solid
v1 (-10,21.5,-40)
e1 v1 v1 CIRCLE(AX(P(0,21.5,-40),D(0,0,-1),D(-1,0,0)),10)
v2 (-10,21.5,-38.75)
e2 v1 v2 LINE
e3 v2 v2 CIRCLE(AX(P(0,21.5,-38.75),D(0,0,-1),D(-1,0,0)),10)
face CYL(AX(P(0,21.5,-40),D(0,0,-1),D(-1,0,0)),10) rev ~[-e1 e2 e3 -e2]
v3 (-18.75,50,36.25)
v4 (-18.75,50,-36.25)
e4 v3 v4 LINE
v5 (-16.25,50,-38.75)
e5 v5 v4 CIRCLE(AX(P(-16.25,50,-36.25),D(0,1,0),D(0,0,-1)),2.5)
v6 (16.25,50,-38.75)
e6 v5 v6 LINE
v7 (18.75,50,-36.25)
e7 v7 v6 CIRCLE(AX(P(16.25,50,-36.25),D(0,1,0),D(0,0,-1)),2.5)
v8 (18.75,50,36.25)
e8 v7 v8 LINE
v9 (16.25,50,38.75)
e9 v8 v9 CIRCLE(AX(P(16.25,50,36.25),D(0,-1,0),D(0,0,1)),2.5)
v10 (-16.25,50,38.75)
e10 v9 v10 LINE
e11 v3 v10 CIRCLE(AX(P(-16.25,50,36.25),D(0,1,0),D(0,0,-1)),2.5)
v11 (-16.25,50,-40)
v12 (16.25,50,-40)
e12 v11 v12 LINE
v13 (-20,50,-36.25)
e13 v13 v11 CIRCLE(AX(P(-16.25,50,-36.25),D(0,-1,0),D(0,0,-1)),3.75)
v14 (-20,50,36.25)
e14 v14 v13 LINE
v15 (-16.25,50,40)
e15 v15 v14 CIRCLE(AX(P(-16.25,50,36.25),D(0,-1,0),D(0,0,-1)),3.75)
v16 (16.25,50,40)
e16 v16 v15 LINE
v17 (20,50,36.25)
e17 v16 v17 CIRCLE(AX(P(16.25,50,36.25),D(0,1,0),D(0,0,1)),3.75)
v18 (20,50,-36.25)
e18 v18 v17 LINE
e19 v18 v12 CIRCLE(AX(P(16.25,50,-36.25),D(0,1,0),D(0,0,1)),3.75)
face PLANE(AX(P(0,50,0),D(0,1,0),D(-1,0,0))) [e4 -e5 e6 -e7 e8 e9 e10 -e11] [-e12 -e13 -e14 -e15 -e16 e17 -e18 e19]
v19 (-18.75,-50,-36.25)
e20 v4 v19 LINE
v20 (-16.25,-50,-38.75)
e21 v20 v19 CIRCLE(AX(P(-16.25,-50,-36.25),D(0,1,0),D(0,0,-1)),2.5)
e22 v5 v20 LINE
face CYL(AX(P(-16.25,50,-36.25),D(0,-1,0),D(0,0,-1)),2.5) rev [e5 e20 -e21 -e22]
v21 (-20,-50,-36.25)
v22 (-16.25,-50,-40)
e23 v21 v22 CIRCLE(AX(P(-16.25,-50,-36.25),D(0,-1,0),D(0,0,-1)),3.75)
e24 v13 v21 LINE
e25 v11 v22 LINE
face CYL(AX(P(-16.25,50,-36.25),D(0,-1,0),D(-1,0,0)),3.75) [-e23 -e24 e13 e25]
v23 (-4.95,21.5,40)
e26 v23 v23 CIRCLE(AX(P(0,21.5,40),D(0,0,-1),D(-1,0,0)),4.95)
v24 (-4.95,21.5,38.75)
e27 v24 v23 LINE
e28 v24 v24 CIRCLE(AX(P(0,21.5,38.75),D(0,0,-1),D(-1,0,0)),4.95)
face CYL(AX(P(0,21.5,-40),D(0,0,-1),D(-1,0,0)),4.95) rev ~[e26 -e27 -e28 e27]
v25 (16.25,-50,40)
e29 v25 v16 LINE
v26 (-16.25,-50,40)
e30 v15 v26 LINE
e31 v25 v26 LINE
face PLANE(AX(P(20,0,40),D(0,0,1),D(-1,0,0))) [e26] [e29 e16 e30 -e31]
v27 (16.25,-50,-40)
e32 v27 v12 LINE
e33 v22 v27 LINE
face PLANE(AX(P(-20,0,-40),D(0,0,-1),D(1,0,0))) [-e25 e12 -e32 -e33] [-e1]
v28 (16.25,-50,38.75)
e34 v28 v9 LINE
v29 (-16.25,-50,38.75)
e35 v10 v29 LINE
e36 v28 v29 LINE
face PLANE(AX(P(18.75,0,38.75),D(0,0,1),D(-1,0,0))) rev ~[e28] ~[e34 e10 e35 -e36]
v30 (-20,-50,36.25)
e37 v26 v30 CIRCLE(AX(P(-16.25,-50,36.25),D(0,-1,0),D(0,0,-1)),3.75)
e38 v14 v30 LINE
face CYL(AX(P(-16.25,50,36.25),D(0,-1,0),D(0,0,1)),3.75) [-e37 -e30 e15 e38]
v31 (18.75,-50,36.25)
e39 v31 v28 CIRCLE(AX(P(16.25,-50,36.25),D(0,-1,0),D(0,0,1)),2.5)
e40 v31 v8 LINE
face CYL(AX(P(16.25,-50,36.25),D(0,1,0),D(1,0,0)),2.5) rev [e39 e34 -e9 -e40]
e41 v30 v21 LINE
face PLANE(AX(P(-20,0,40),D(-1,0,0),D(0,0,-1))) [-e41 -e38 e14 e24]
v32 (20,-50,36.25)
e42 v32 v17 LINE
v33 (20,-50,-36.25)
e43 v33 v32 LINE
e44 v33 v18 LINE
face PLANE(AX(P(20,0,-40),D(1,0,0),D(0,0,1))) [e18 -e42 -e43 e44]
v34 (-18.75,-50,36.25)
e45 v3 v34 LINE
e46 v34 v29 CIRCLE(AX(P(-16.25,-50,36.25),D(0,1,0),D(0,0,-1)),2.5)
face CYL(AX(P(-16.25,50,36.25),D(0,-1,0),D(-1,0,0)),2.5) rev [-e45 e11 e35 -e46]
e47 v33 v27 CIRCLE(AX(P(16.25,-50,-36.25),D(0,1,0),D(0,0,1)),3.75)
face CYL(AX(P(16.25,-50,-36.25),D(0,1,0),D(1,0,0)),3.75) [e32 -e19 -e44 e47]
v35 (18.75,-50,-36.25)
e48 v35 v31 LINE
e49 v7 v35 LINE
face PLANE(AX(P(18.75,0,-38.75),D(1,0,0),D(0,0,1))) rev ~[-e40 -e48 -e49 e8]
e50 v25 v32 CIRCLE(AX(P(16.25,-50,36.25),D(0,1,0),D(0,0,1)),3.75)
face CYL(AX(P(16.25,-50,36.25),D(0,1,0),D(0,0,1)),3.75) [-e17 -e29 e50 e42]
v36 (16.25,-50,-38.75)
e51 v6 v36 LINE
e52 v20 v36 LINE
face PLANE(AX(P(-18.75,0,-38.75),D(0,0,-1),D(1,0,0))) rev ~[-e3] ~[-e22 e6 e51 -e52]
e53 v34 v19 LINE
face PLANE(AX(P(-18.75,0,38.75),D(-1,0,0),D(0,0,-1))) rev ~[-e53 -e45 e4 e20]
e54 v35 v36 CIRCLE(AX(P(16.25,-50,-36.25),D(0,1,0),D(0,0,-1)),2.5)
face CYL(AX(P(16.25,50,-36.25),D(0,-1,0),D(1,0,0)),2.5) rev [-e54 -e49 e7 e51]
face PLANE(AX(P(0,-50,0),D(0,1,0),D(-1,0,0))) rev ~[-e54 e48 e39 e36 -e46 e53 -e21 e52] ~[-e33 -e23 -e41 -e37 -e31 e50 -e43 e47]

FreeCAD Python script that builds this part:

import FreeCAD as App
import Part
import Sketcher
from FreeCAD import Vector
Q = App.Units.Quantity


def edges_at(feature, points):
    """Names of the edges that pass closest to the given points."""
    edges = feature.Shape.Edges
    near = lambda p: min(range(len(edges)), key=lambda i: edges[i].distToShape(Part.Vertex(*p))[0])
    return sorted({f"Edge{near(p) + 1}" for p in points})


def add_polygon(sketch, points):
    """Adds a closed chain of lines whose ends are joined by coincident constraints."""
    first, n = sketch.GeometryCount, len(points)
    for a, b in zip(points, points[1:] + points[:1]):
        sketch.addGeometry(Part.LineSegment(App.Vector(*a, 0), App.Vector(*b, 0)), False)
    for i in range(n):
        sketch.addConstraint(Sketcher.Constraint("Coincident", first + i, 2, first + (i + 1) % n, 1))

doc = App.newDocument("Part")
body = doc.addObject("PartDesign::Body", "Body")

# Sketch on XZ plane
sketch1 = doc.addObject("Sketcher::SketchObject", "Sketch")
body.addObject(sketch1)
sketch1.AttachmentSupport = (doc.XZ_Plane, [""])
sketch1.MapMode = "FlatFace"
add_polygon(sketch1, [(-20, 40), (20, 40), (20, -40), (-20, -40)])  # lines 0-3
add_polygon(sketch1, [(18.75, -38.75), (18.75, 38.75), (-18.75, 38.75), (-18.75, -38.75)])  # lines 4-7
sketch1.addConstraint(Sketcher.Constraint("Horizontal", 0))
sketch1.addConstraint(Sketcher.Constraint("Vertical", 1))
sketch1.addConstraint(Sketcher.Constraint("Horizontal", 2))
sketch1.addConstraint(Sketcher.Constraint("Vertical", 3))
sketch1.addConstraint(Sketcher.Constraint("Vertical", 4))
sketch1.addConstraint(Sketcher.Constraint("Horizontal", 5))
sketch1.addConstraint(Sketcher.Constraint("Vertical", 6))
sketch1.addConstraint(Sketcher.Constraint("Horizontal", 7))
sketch1.addConstraint(Sketcher.Constraint("Symmetric", 0, 2, 2, 2, -1, 1))
sketch1.addConstraint(Sketcher.Constraint("Symmetric", 4, 2, 6, 2, -1, 1))
sketch1.addConstraint(Sketcher.Constraint("DistanceX", 0, 1, 0, 2, Q("40 mm")))
sketch1.addConstraint(Sketcher.Constraint("DistanceY", 1, 2, 1, 1, Q("80 mm")))
sketch1.addConstraint(Sketcher.Constraint("DistanceX", 5, 2, 5, 1, Q("37.5 mm")))
sketch1.addConstraint(Sketcher.Constraint("DistanceY", 4, 1, 4, 2, Q("77.5 mm")))
pad1 = doc.addObject("PartDesign::Pad", "Pad")
body.addObject(pad1)
pad1.Profile = sketch1
pad1.Length = 100
pad1.Midplane = True
doc.recompute()

fillet = doc.addObject("PartDesign::Fillet", "Fillet")
body.addObject(fillet)
fillet.Base = (pad1, edges_at(pad1, [
    (20, 0, 40),
    (-20, 0, 40),
    (20, 0, -40),
    (-20, 0, -40),
]))
fillet.Radius = 3.75
doc.recompute()

fillet2 = doc.addObject("PartDesign::Fillet", "Fillet001")
body.addObject(fillet2)
fillet2.Base = (fillet, edges_at(fillet, [
    (18.75, 0, 38.75),
    (-18.75, 0, -38.75),
    (18.75, 0, -38.75),
    (-18.75, 0, 38.75),
]))
fillet2.Radius = 2.5

# Sketch on XY plane
sketch2 = doc.addObject("Sketcher::SketchObject", "Sketch001")
body.addObject(sketch2)
sketch2.AttachmentSupport = (doc.XY_Plane, [""])
sketch2.MapMode = "FlatFace"
sketch2.AttachmentOffset = App.Placement(Vector(0, 0, -40), App.Rotation())
sketch2.addGeometry(Part.Circle(Vector(0, 21.5, 0), Vector(0, 0, 1), 4.95), False)
sketch2.addConstraint(Sketcher.Constraint("PointOnObject", 0, 3, -2))
sketch2.addConstraint(Sketcher.Constraint("Diameter", 0, Q("9.9 mm")))
sketch2.addConstraint(Sketcher.Constraint("DistanceY", -1, 1, 0, 3, Q("21.5 mm")))
pocket1 = doc.addObject("PartDesign::Pocket", "Pocket")
body.addObject(pocket1)
pocket1.Profile = sketch2
pocket1.Type = "ThroughAll"
pocket1.Reversed = True

# Sketch on XY plane
sketch3 = doc.addObject("Sketcher::SketchObject", "Sketch002")
body.addObject(sketch3)
sketch3.AttachmentSupport = (doc.XY_Plane, [""])
sketch3.MapMode = "FlatFace"
sketch3.AttachmentOffset = App.Placement(Vector(0, 0, -40), App.Rotation())
sketch3.addGeometry(Part.Circle(Vector(0, 21.5, 0), Vector(0, 0, 1), 10), False)
sketch3.addGeometry(Part.Circle(Vector(0, 21.5, 0), Vector(0, 0, 1), 4.95), False)
sketch3.addConstraint(Sketcher.Constraint("Coincident", 1, 3, 0, 3))
sketch3.addConstraint(Sketcher.Constraint("PointOnObject", 0, 3, -2))
sketch3.addConstraint(Sketcher.Constraint("Diameter", 0, Q("20 mm")))
sketch3.addConstraint(Sketcher.Constraint("Diameter", 1, Q("9.9 mm")))
sketch3.addConstraint(Sketcher.Constraint("DistanceY", -1, 1, 0, 3, Q("21.5 mm")))
pocket2 = doc.addObject("PartDesign::Pocket", "Pocket001")
body.addObject(pocket2)
pocket2.Profile = sketch3
pocket2.Length = 10
pocket2.Reversed = True

doc.recompute()
